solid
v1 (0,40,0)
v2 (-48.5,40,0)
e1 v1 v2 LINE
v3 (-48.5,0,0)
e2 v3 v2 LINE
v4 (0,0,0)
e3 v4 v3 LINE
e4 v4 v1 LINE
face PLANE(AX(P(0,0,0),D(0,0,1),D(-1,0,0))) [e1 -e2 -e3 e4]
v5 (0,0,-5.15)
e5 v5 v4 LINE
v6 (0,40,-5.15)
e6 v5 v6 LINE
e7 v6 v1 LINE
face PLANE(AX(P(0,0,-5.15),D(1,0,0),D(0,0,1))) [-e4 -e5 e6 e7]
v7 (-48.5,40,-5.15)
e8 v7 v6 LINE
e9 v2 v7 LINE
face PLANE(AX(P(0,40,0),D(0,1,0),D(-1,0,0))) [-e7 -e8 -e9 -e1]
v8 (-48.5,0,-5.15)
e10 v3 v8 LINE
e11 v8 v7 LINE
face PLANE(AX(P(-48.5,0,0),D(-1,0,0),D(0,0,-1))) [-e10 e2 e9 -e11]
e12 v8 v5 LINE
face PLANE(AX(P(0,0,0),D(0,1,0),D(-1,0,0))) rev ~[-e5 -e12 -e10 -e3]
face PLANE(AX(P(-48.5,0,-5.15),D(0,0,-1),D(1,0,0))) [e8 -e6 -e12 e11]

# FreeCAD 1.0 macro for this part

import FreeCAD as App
import Part
import Sketcher

V = App.Vector
Q = App.Units.Quantity


def add_polygon(sketch, points):
    """Adds a closed chain of lines whose ends are joined by coincident constraints."""
    first, n = sketch.GeometryCount, len(points)
    for a, b in zip(points, points[1:] + points[:1]):
        sketch.addGeometry(Part.LineSegment(App.Vector(*a, 0), App.Vector(*b, 0)), False)
    for i in range(n):
        sketch.addConstraint(Sketcher.Constraint("Coincident", first + i, 2, first + (i + 1) % n, 1))

doc = App.newDocument("Part")
body = doc.addObject("PartDesign::Body", "Body")

# Sketch on XZ plane
sketch1 = body.newObject("Sketcher::SketchObject", "Sketch")
sketch1.AttachmentSupport = (doc.getObject("XZ_Plane"), [""])
sketch1.MapMode = "FlatFace"
add_polygon(sketch1, [(-48, 0), (0, 0), (0, -5), (-48, -5)])  # lines 0-3
sketch1.addConstraint([
    Sketcher.Constraint("Horizontal", 0),
    Sketcher.Constraint("Vertical", 1),
    Sketcher.Constraint("Horizontal", 2),
    Sketcher.Constraint("Vertical", 3),
    Sketcher.Constraint("Coincident", 0, 2, -1, 1),
    Sketcher.Constraint("DistanceX", 0, 1, 0, 2, Q("48.5 mm")),
    Sketcher.Constraint("DistanceY", 1, 2, 1, 1, Q("5.15 mm")),
])
pad1 = body.newObject("PartDesign::Pad", "Pad")
pad1.Profile = sketch1
pad1.Length = 40
pad1.Reversed = True

doc.recompute()
